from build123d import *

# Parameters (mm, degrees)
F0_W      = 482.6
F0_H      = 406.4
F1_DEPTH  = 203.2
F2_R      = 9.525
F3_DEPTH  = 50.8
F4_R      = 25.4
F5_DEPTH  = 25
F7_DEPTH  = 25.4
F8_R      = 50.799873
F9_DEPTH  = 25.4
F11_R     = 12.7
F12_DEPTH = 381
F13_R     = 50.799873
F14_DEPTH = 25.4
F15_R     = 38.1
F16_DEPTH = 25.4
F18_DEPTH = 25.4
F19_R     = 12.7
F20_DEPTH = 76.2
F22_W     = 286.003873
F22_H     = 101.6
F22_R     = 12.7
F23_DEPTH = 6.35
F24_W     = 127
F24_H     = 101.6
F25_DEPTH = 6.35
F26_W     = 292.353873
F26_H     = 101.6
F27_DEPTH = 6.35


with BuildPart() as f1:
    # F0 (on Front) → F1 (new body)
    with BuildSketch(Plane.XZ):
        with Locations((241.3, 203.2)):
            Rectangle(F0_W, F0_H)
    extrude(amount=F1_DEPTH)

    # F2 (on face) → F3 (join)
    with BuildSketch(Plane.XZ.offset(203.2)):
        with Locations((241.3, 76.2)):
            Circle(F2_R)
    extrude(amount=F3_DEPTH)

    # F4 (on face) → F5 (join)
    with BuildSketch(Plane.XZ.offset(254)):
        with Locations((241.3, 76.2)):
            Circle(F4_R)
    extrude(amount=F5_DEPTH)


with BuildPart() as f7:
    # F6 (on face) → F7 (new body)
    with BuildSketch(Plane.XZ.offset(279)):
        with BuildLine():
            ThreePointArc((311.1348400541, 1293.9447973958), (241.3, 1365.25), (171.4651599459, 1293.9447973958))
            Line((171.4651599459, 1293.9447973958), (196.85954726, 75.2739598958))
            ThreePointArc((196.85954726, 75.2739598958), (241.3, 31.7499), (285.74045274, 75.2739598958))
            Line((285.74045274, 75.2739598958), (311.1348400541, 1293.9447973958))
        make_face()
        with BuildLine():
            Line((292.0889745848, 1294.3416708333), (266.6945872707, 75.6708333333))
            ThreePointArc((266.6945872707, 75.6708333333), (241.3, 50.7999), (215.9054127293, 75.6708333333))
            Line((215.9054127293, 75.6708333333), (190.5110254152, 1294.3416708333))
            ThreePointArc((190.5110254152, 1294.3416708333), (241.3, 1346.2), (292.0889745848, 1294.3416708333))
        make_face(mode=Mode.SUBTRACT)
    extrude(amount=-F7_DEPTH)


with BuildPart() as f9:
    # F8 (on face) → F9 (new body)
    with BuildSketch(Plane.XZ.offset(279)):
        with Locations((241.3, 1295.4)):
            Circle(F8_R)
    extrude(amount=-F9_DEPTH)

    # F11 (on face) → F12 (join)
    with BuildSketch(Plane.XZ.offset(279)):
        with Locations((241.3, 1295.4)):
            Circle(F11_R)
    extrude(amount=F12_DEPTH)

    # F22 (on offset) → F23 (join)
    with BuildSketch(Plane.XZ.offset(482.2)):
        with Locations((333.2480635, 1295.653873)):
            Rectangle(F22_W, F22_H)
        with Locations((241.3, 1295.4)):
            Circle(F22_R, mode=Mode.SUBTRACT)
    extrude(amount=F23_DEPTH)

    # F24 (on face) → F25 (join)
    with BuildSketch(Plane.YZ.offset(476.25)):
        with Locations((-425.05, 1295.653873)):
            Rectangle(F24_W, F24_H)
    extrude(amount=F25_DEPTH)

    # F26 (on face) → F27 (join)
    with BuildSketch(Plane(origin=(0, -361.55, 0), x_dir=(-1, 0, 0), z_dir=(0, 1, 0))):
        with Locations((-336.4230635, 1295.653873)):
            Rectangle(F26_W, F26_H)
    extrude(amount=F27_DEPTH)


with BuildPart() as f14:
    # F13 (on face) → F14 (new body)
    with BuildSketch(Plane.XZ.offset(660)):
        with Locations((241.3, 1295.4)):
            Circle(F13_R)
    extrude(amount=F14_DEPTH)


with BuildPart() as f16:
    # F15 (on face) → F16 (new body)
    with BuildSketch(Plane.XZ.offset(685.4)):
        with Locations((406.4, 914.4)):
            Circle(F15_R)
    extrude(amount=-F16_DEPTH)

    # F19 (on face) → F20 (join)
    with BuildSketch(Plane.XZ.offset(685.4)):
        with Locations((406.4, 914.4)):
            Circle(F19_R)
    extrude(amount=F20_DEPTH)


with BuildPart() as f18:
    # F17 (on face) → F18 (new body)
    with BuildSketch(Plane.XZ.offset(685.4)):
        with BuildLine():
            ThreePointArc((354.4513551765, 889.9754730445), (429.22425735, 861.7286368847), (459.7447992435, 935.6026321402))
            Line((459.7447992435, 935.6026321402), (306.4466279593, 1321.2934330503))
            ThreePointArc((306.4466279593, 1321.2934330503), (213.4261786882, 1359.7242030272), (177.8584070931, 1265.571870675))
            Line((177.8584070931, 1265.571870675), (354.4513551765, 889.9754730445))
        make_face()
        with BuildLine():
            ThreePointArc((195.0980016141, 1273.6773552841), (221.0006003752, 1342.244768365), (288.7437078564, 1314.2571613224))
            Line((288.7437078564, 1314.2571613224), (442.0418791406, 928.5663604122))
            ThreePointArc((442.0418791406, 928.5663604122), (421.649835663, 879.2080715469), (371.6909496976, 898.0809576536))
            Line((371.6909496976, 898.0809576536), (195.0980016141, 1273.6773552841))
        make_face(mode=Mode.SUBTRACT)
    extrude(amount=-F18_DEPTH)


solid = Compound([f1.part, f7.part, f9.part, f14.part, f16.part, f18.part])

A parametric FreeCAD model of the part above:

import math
import FreeCAD as App
import Part
import Sketcher
from FreeCAD import Vector
Q = App.Units.Quantity


def add_polygon(sketch, points):
    """Adds a closed chain of lines whose ends are joined by coincident constraints."""
    first, n = sketch.GeometryCount, len(points)
    for a, b in zip(points, points[1:] + points[:1]):
        sketch.addGeometry(Part.LineSegment(App.Vector(*a, 0), App.Vector(*b, 0)), False)
    for i in range(n):
        sketch.addConstraint(Sketcher.Constraint("Coincident", first + i, 2, first + (i + 1) % n, 1))

doc = App.newDocument("Part")
body = doc.addObject("PartDesign::Body", "Body")

# Sketch on XZ plane
sketch1 = body.newObject("Sketcher::SketchObject", "Sketch")
sketch1.AttachmentSupport = (doc.getObject("XZ_Plane"), [""])
sketch1.MapMode = "FlatFace"
add_polygon(sketch1, [(0, 406), (0, 0), (483, 0), (483, 406)])  # lines 0-3
sketch1.addConstraint(Sketcher.Constraint("Vertical", 0))
sketch1.addConstraint(Sketcher.Constraint("Horizontal", 1))
sketch1.addConstraint(Sketcher.Constraint("Vertical", 2))
sketch1.addConstraint(Sketcher.Constraint("Horizontal", 3))
sketch1.addConstraint(Sketcher.Constraint("Coincident", 0, 2, -1, 1))
sketch1.addConstraint(Sketcher.Constraint("DistanceX", 1, 1, 1, 2, Q("19 in")))
sketch1.addConstraint(Sketcher.Constraint("DistanceY", 0, 2, 0, 1, Q("16 in")))
pad1 = body.newObject("PartDesign::Pad", "Pad")
pad1.Profile = sketch1
pad1.Length = Q("8 in")

# Sketch on XZ plane
sketch2 = body.newObject("Sketcher::SketchObject", "Sketch001")
sketch2.AttachmentSupport = (doc.getObject("XZ_Plane"), [""])
sketch2.MapMode = "FlatFace"
sketch2.AttachmentOffset = App.Placement(Vector(0, 0, 8 * 25.4), App.Rotation())
sketch2.addGeometry(Part.Circle(Vector(241, 76, 0), Vector(0, 0, 1), 10), False)
sketch2.addConstraint(Sketcher.Constraint("Diameter", 0, Q("0.75 in")))
sketch2.addConstraint(Sketcher.Constraint("DistanceY", -1, 1, 0, 3, Q("3 in")))
sketch2.addConstraint(Sketcher.Constraint("DistanceX", -1, 1, 0, 3, Q("9.5 in")))
pad2 = body.newObject("PartDesign::Pad", "Pad001")
pad2.Profile = sketch2
pad2.Length = Q("2 in")

# Sketch on XZ plane
sketch3 = body.newObject("Sketcher::SketchObject", "Sketch002")
sketch3.AttachmentSupport = (doc.getObject("XZ_Plane"), [""])
sketch3.MapMode = "FlatFace"
sketch3.AttachmentOffset = App.Placement(Vector(0, 0, 10 * 25.4), App.Rotation())
sketch3.addGeometry(Part.Circle(Vector(241, 76, 0), Vector(0, 0, 1), 25), False)
sketch3.addConstraint(Sketcher.Constraint("Diameter", 0, Q("2 in")))
sketch3.addConstraint(Sketcher.Constraint("DistanceY", -1, 1, 0, 3, Q("3 in")))
sketch3.addConstraint(Sketcher.Constraint("DistanceX", -1, 1, 0, 3, Q("9.5 in")))
pad3 = body.newObject("PartDesign::Pad", "Pad002")
pad3.Profile = sketch3
pad3.Length = 25
body2 = doc.addObject("PartDesign::Body", "Body001")

# Sketch on XZ plane
sketch4 = body2.newObject("Sketcher::SketchObject", "Sketch003")
sketch4.AttachmentSupport = (doc.getObject("XZ_Plane001"), [""])
sketch4.MapMode = "FlatFace"
sketch4.AttachmentOffset = App.Placement(Vector(0, 0, 279), App.Rotation())
sketch4.addGeometry(Part.ArcOfCircle(Part.Circle(Vector(241, 1295, 0), Vector(0, 0, 1), 70), math.radians(-1), math.radians(181)), False)
sketch4.addGeometry(Part.LineSegment(Vector(171, 1294, 0), Vector(197, 75, 0)), False)
sketch4.addGeometry(Part.ArcOfCircle(Part.Circle(Vector(241, 76, 0), Vector(0, 0, 1), 44), math.radians(-179), math.radians(-1)), False)
sketch4.addGeometry(Part.LineSegment(Vector(286, 75, 0), Vector(311, 1294, 0)), False)
sketch4.addGeometry(Part.ArcOfCircle(Part.Circle(Vector(241, 1295, 0), Vector(0, 0, 1), 51), math.radians(-1), math.radians(181)), False)
sketch4.addGeometry(Part.LineSegment(Vector(292, 1294, 0), Vector(267, 76, 0)), False)
sketch4.addGeometry(Part.ArcOfCircle(Part.Circle(Vector(241, 76, 0), Vector(0, 0, 1), 25), math.radians(-179), math.radians(-1)), False)
sketch4.addGeometry(Part.LineSegment(Vector(216, 76, 0), Vector(191, 1294, 0)), False)
sketch4.addConstraint(Sketcher.Constraint("Tangent", 0, 2, 1, 1))
sketch4.addConstraint(Sketcher.Constraint("Tangent", 1, 2, 2, 1))
sketch4.addConstraint(Sketcher.Constraint("Tangent", 2, 2, 3, 1))
sketch4.addConstraint(Sketcher.Constraint("Tangent", 3, 2, 0, 1))
sketch4.addConstraint(Sketcher.Constraint("Tangent", 4, 1, 5, 1))
sketch4.addConstraint(Sketcher.Constraint("Tangent", 5, 2, 6, 2))
sketch4.addConstraint(Sketcher.Constraint("Tangent", 6, 1, 7, 1))
sketch4.addConstraint(Sketcher.Constraint("Tangent", 7, 2, 4, 2))
sketch4.addConstraint(Sketcher.Constraint("Coincident", 4, 3, 0, 3))
sketch4.addConstraint(Sketcher.Constraint("Coincident", 6, 3, 2, 3))
sketch4.addConstraint(Sketcher.Constraint("Parallel", 3, 5))
sketch4.addConstraint(Sketcher.Constraint("Vertical", 0, 3, 2, 3))
sketch4.addConstraint(Sketcher.Constraint("Radius", 4, Q("2 in")))
sketch4.addConstraint(Sketcher.Constraint("Radius", 0, Q("2.75 in")))
sketch4.addConstraint(Sketcher.Constraint("DistanceY", -1, 1, 0, 3, Q("51 in")))
sketch4.addConstraint(Sketcher.Constraint("DistanceY", -1, 1, 2, 3, Q("3 in")))
sketch4.addConstraint(Sketcher.Constraint("DistanceX", -1, 1, 0, 3, Q("9.5 in")))
sketch4.addConstraint(Sketcher.Constraint("Radius", 2, Q("44.4501 mm")))
pad4 = body2.newObject("PartDesign::Pad", "Pad003")
pad4.Profile = sketch4
pad4.Length = Q("1 in")
pad4.Reversed = True
body3 = doc.addObject("PartDesign::Body", "Body002")

# Sketch on XZ plane
sketch5 = body3.newObject("Sketcher::SketchObject", "Sketch004")
sketch5.AttachmentSupport = (doc.getObject("XZ_Plane002"), [""])
sketch5.MapMode = "FlatFace"
sketch5.AttachmentOffset = App.Placement(Vector(0, 0, 279), App.Rotation())
sketch5.addGeometry(Part.Circle(Vector(241, 1295, 0), Vector(0, 0, 1), 51), False)
sketch5.addConstraint(Sketcher.Constraint("DistanceY", -1, 1, 0, 3, Q("51 in")))
sketch5.addConstraint(Sketcher.Constraint("DistanceX", -1, 1, 0, 3, Q("9.5 in")))
sketch5.addConstraint(Sketcher.Constraint("Diameter", 0, Q("101.599746 mm")))
pad5 = body3.newObject("PartDesign::Pad", "Pad004")
pad5.Profile = sketch5
pad5.Length = Q("1 in")
pad5.Reversed = True

# Sketch on XZ plane
sketch6 = body3.newObject("Sketcher::SketchObject", "Sketch005")
sketch6.AttachmentSupport = (doc.getObject("XZ_Plane002"), [""])
sketch6.MapMode = "FlatFace"
sketch6.AttachmentOffset = App.Placement(Vector(0, 0, 279), App.Rotation())
sketch6.addGeometry(Part.Circle(Vector(241, 1295, 0), Vector(0, 0, 1), 13), False)
sketch6.addConstraint(Sketcher.Constraint("Diameter", 0, Q("1 in")))
sketch6.addConstraint(Sketcher.Constraint("DistanceY", -1, 1, 0, 3, Q("51 in")))
sketch6.addConstraint(Sketcher.Constraint("DistanceX", -1, 1, 0, 3, Q("9.5 in")))
pad6 = body3.newObject("PartDesign::Pad", "Pad005")
pad6.Profile = sketch6
pad6.Length = Q("15 in")

# Sketch on XZ plane
sketch7 = body3.newObject("Sketcher::SketchObject", "Sketch006")
sketch7.AttachmentSupport = (doc.getObject("XZ_Plane002"), [""])
sketch7.MapMode = "FlatFace"
sketch7.AttachmentOffset = App.Placement(Vector(0, 0, 482.2), App.Rotation())
add_polygon(sketch7, [(190, 1346), (190, 1245), (476, 1245), (476, 1346)])  # lines 0-3
sketch7.addGeometry(Part.Circle(Vector(241, 1295, 0), Vector(0, 0, 1), 13), False)  # 4
sketch7.addConstraint(Sketcher.Constraint("Vertical", 0))
sketch7.addConstraint(Sketcher.Constraint("Horizontal", 1))
sketch7.addConstraint(Sketcher.Constraint("Vertical", 2))
sketch7.addConstraint(Sketcher.Constraint("Horizontal", 3))
sketch7.addConstraint(Sketcher.Constraint("Diameter", 4, Q("1 in")))
sketch7.addConstraint(Sketcher.Constraint("DistanceY", 0, 2, 0, 1, Q("4 in")))
sketch7.addConstraint(Sketcher.Constraint("DistanceY", -1, 1, 4, 3, Q("51 in")))
sketch7.addConstraint(Sketcher.Constraint("DistanceX", -1, 1, 4, 3, Q("9.5 in")))
sketch7.addConstraint(Sketcher.Constraint("DistanceX", -1, 1, 1, 2, Q("18.75 in")))
sketch7.addConstraint(Sketcher.Constraint("DistanceX", 1, 1, 1, 2, Q("286.003873 mm")))
sketch7.addConstraint(Sketcher.Constraint("DistanceY", -1, 1, 0, 2, Q("1244.853873 mm")))
pad7 = body3.newObject("PartDesign::Pad", "Pad006")
pad7.Profile = sketch7
pad7.Length = Q("0.25 in")

# Sketch on YZ plane
sketch8 = body3.newObject("Sketcher::SketchObject", "Sketch007")
sketch8.AttachmentSupport = (doc.getObject("YZ_Plane002"), [""])
sketch8.MapMode = "FlatFace"
sketch8.AttachmentOffset = App.Placement(Vector(0, 0, 18.75 * 25.4), App.Rotation())
add_polygon(sketch8, [(-489, 1346), (-489, 1245), (-362, 1245), (-362, 1346)])  # lines 0-3
sketch8.addConstraint(Sketcher.Constraint("Vertical", 0))
sketch8.addConstraint(Sketcher.Constraint("Horizontal", 1))
sketch8.addConstraint(Sketcher.Constraint("Vertical", 2))
sketch8.addConstraint(Sketcher.Constraint("Horizontal", 3))
sketch8.addConstraint(Sketcher.Constraint("DistanceX", 1, 1, 1, 2, Q("5 in")))
sketch8.addConstraint(Sketcher.Constraint("DistanceY", 0, 2, 0, 1, Q("4 in")))
sketch8.addConstraint(Sketcher.Constraint("DistanceX", 0, 2, -1, 1, Q("488.55 mm")))
sketch8.addConstraint(Sketcher.Constraint("DistanceY", -1, 1, 0, 2, Q("1244.853873 mm")))
pad8 = body3.newObject("PartDesign::Pad", "Pad007")
pad8.Profile = sketch8
pad8.Length = Q("0.25 in")

# Sketch on XZ plane
sketch9 = body3.newObject("Sketcher::SketchObject", "Sketch008")
sketch9.AttachmentSupport = (doc.getObject("XZ_Plane002"), [""])
sketch9.MapMode = "FlatFace"
sketch9.AttachmentOffset = App.Placement(Vector(0, 0, 361.55), App.Rotation())
add_polygon(sketch9, [(483, 1346), (483, 1245), (190, 1245), (190, 1346)])  # lines 0-3
sketch9.addConstraint(Sketcher.Constraint("Vertical", 0))
sketch9.addConstraint(Sketcher.Constraint("Horizontal", 1))
sketch9.addConstraint(Sketcher.Constraint("Vertical", 2))
sketch9.addConstraint(Sketcher.Constraint("Horizontal", 3))
sketch9.addConstraint(Sketcher.Constraint("DistanceY", 0, 2, 0, 1, Q("4 in")))
sketch9.addConstraint(Sketcher.Constraint("DistanceX", -1, 1, 0, 2, Q("19 in")))
sketch9.addConstraint(Sketcher.Constraint("DistanceX", 1, 2, 1, 1, Q("292.353873 mm")))
sketch9.addConstraint(Sketcher.Constraint("DistanceY", -1, 1, 0, 2, Q("1244.853873 mm")))
pad9 = body3.newObject("PartDesign::Pad", "Pad008")
pad9.Profile = sketch9
pad9.Length = Q("0.25 in")
pad9.Reversed = True
body4 = doc.addObject("PartDesign::Body", "Body003")

# Sketch on XZ plane
sketch10 = body4.newObject("Sketcher::SketchObject", "Sketch009")
sketch10.AttachmentSupport = (doc.getObject("XZ_Plane003"), [""])
sketch10.MapMode = "FlatFace"
sketch10.AttachmentOffset = App.Placement(Vector(0, 0, 660), App.Rotation())
sketch10.addGeometry(Part.Circle(Vector(241, 1295, 0), Vector(0, 0, 1), 51), False)
sketch10.addConstraint(Sketcher.Constraint("DistanceY", -1, 1, 0, 3, Q("51 in")))
sketch10.addConstraint(Sketcher.Constraint("DistanceX", -1, 1, 0, 3, Q("9.5 in")))
sketch10.addConstraint(Sketcher.Constraint("Diameter", 0, Q("101.599746 mm")))
pad10 = body4.newObject("PartDesign::Pad", "Pad009")
pad10.Profile = sketch10
pad10.Length = Q("1 in")
body5 = doc.addObject("PartDesign::Body", "Body004")

# Sketch on XZ plane
sketch11 = body5.newObject("Sketcher::SketchObject", "Sketch010")
sketch11.AttachmentSupport = (doc.getObject("XZ_Plane004"), [""])
sketch11.MapMode = "FlatFace"
sketch11.AttachmentOffset = App.Placement(Vector(0, 0, 685.4), App.Rotation())
sketch11.addGeometry(Part.Circle(Vector(406, 914, 0), Vector(0, 0, 1), 38), False)
sketch11.addConstraint(Sketcher.Constraint("Diameter", 0, Q("3 in")))
sketch11.addConstraint(Sketcher.Constraint("DistanceX", -1, 1, 0, 3, Q("16 in")))
sketch11.addConstraint(Sketcher.Constraint("DistanceY", -1, 1, 0, 3, Q("36 in")))
pad11 = body5.newObject("PartDesign::Pad", "Pad010")
pad11.Profile = sketch11
pad11.Length = Q("1 in")
pad11.Reversed = True

# Sketch on XZ plane
sketch12 = body5.newObject("Sketcher::SketchObject", "Sketch011")
sketch12.AttachmentSupport = (doc.getObject("XZ_Plane004"), [""])
sketch12.MapMode = "FlatFace"
sketch12.AttachmentOffset = App.Placement(Vector(0, 0, 685.4), App.Rotation())
sketch12.addGeometry(Part.Circle(Vector(406, 914, 0), Vector(0, 0, 1), 13), False)
sketch12.addConstraint(Sketcher.Constraint("Diameter", 0, Q("1 in")))
sketch12.addConstraint(Sketcher.Constraint("DistanceX", -1, 1, 0, 3, Q("16 in")))
sketch12.addConstraint(Sketcher.Constraint("DistanceY", -1, 1, 0, 3, Q("36 in")))
pad12 = body5.newObject("PartDesign::Pad", "Pad011")
pad12.Profile = sketch12
pad12.Length = Q("3 in")
body6 = doc.addObject("PartDesign::Body", "Body005")

# Sketch on XZ plane
sketch13 = body6.newObject("Sketcher::SketchObject", "Sketch012")
sketch13.AttachmentSupport = (doc.getObject("XZ_Plane005"), [""])
sketch13.MapMode = "FlatFace"
sketch13.AttachmentOffset = App.Placement(Vector(0, 0, 685.4), App.Rotation())
sketch13.addGeometry(Part.ArcOfCircle(Part.Circle(Vector(406, 914, 0), Vector(0, 0, 1), 57), math.radians(-155), math.radians(22)), False)
sketch13.addGeometry(Part.LineSegment(Vector(460, 936, 0), Vector(306, 1321, 0)), False)
sketch13.addGeometry(Part.ArcOfCircle(Part.Circle(Vector(241, 1295, 0), Vector(0, 0, 1), 70), math.radians(22), math.radians(205)), False)
sketch13.addGeometry(Part.LineSegment(Vector(178, 1266, 0), Vector(354, 890, 0)), False)
sketch13.addGeometry(Part.LineSegment(Vector(372, 898, 0), Vector(195, 1274, 0)), False)
sketch13.addGeometry(Part.ArcOfCircle(Part.Circle(Vector(241, 1295, 0), Vector(0, 0, 1), 51), math.radians(22), math.radians(205)), False)
sketch13.addGeometry(Part.LineSegment(Vector(289, 1314, 0), Vector(442, 929, 0)), False)
sketch13.addGeometry(Part.ArcOfCircle(Part.Circle(Vector(406, 914, 0), Vector(0, 0, 1), 38), math.radians(-155), math.radians(22)), False)
sketch13.addConstraint(Sketcher.Constraint("Tangent", 0, 2, 1, 1))
sketch13.addConstraint(Sketcher.Constraint("Tangent", 1, 2, 2, 1))
sketch13.addConstraint(Sketcher.Constraint("Tangent", 2, 2, 3, 1))
sketch13.addConstraint(Sketcher.Constraint("Tangent", 3, 2, 0, 1))
sketch13.addConstraint(Sketcher.Constraint("Tangent", 4, 2, 5, 2))
sketch13.addConstraint(Sketcher.Constraint("Tangent", 5, 1, 6, 1))
sketch13.addConstraint(Sketcher.Constraint("Tangent", 6, 2, 7, 2))
sketch13.addConstraint(Sketcher.Constraint("Tangent", 7, 1, 4, 1))
sketch13.addConstraint(Sketcher.Constraint("Coincident", 5, 3, 2, 3))
sketch13.addConstraint(Sketcher.Constraint("Coincident", 7, 3, 0, 3))
sketch13.addConstraint(Sketcher.Constraint("Parallel", 3, 4))
sketch13.addConstraint(Sketcher.Constraint("Radius", 0, Q("2.26 in")))
sketch13.addConstraint(Sketcher.Constraint("Radius", 7, Q("1.51 in")))
sketch13.addConstraint(Sketcher.Constraint("DistanceX", -1, 1, 0, 3, Q("16 in")))
sketch13.addConstraint(Sketcher.Constraint("DistanceY", -1, 1, 0, 3, Q("36 in")))
sketch13.addConstraint(Sketcher.Constraint("DistanceY", -1, 1, 2, 3, Q("51 in")))
sketch13.addConstraint(Sketcher.Constraint("DistanceX", -1, 1, 2, 3, Q("9.5 in")))
sketch13.addConstraint(Sketcher.Constraint("Radius", 2, Q("70.103873 mm")))
pad13 = body6.newObject("PartDesign::Pad", "Pad012")
pad13.Profile = sketch13
pad13.Length = Q("1 in")
pad13.Reversed = True

doc.recompute()
